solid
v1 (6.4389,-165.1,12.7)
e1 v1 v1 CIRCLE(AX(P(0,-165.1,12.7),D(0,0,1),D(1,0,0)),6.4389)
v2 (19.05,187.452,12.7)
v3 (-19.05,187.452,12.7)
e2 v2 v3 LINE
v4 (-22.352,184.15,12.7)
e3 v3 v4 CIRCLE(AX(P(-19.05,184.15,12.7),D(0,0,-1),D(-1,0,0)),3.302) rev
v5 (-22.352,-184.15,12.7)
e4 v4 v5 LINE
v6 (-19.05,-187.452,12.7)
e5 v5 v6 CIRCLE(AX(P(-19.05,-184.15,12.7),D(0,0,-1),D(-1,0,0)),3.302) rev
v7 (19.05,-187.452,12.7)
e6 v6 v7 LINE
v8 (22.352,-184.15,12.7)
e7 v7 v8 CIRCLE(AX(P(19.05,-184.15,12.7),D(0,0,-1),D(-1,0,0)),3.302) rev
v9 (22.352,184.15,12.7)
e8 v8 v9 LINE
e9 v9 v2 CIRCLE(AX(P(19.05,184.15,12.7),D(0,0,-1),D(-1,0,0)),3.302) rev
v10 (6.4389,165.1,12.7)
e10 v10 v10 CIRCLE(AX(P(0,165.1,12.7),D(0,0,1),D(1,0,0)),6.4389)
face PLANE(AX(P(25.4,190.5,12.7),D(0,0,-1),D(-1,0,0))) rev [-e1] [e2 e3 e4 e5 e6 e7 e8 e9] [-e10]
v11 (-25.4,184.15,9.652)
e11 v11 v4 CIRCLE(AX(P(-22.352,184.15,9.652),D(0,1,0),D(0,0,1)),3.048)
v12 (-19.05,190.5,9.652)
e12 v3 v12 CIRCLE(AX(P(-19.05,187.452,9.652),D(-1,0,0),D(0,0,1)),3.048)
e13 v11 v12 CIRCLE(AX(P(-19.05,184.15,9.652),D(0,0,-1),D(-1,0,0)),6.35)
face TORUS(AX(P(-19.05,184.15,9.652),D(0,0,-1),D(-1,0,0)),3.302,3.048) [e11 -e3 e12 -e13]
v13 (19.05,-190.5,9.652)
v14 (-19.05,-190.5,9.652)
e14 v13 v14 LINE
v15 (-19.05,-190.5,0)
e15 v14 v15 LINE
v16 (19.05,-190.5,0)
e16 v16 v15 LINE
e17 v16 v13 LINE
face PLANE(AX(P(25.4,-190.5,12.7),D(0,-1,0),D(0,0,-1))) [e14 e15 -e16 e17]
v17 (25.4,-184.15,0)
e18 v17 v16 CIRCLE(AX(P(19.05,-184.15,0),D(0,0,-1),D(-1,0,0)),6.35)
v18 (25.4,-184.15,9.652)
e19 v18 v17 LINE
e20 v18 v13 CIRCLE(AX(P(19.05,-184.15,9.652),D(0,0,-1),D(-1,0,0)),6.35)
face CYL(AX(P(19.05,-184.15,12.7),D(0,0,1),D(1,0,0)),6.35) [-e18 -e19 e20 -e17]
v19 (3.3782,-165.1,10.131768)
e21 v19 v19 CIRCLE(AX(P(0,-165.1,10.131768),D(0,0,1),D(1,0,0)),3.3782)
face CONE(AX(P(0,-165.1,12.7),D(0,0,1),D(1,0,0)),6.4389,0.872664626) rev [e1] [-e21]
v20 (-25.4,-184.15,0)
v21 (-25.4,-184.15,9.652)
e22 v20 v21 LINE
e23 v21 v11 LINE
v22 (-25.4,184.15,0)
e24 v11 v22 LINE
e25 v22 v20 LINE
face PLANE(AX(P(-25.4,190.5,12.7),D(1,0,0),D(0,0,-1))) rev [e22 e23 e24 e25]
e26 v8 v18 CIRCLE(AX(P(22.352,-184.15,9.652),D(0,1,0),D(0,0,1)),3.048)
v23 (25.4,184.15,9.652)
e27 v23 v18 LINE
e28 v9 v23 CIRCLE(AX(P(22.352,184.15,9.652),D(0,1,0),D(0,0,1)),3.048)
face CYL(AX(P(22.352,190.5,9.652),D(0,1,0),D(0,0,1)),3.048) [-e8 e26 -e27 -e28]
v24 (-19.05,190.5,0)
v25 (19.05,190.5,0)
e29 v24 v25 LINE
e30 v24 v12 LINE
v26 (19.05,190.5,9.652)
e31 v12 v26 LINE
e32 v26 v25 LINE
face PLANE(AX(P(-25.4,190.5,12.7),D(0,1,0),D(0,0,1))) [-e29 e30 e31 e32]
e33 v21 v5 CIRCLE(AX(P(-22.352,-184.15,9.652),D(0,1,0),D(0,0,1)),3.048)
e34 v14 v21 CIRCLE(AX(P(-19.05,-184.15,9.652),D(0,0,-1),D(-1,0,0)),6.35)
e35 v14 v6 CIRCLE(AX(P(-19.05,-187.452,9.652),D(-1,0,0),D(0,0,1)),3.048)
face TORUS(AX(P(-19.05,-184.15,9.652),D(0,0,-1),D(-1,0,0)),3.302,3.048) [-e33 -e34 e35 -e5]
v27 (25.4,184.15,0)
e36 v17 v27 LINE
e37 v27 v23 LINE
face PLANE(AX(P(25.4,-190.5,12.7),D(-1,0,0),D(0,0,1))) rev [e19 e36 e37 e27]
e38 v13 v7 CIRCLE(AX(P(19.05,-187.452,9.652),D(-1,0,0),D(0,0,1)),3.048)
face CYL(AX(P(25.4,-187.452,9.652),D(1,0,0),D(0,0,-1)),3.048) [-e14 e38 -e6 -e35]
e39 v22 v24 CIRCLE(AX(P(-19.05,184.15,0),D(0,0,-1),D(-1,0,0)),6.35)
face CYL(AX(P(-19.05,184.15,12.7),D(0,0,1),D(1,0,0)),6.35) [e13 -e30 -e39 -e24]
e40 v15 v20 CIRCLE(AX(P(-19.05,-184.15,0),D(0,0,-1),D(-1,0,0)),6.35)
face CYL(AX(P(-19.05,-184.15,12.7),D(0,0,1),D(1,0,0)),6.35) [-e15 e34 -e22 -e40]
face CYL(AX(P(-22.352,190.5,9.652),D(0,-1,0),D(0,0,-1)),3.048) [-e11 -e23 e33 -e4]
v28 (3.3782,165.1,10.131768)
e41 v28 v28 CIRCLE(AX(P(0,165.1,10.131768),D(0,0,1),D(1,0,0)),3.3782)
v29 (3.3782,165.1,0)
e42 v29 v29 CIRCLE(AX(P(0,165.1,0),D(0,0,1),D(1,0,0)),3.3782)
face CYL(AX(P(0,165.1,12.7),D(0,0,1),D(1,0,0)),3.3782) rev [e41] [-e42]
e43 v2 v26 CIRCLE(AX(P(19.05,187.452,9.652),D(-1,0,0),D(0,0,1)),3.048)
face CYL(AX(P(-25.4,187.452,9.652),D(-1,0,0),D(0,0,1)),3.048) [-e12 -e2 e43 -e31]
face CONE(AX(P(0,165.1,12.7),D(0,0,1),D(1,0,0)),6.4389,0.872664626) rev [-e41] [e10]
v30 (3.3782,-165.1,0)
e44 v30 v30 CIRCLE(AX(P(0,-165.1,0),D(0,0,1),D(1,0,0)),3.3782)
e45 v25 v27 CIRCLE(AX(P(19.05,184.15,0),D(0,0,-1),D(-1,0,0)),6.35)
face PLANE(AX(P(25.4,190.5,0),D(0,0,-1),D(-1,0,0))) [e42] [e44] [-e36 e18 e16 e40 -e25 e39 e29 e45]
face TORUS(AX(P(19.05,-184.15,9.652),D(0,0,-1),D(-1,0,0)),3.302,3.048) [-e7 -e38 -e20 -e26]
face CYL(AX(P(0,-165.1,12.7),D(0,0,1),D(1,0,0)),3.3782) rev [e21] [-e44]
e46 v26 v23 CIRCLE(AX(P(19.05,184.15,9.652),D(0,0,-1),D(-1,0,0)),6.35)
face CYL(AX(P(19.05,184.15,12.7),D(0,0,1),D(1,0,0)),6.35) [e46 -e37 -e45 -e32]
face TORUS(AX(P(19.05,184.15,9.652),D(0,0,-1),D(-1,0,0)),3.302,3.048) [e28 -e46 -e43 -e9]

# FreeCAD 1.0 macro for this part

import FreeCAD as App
import Part
import Sketcher
Q = App.Units.Quantity


def edges_at(feature, points):
    """Names of the edges that pass closest to the given points."""
    edges = feature.Shape.Edges
    near = lambda p: min(range(len(edges)), key=lambda i: edges[i].distToShape(Part.Vertex(*p))[0])
    return sorted({f"Edge{near(p) + 1}" for p in points})

doc = App.newDocument("Part")
params = doc.addObject("Spreadsheet::Sheet", "Params")
for row, (alias, value) in enumerate([
    ("sketch1_width", "2 in"),
    ("sketch1_height", "15 in"),
    ("pad1_length", "0.5 in"),
    ("sketch2_diameter", "0.266 in"),
    ("hole_diameter", "0.266 in"),
    ("hole_csink_diameter", "0.507 in"),
    ("fillet_radius", "0.25 in"),
    ("fillet2_radius", "0.12 in"),
], start=1):
    params.set(f"A{row}", alias)
    params.set(f"B{row}", "=" + value)
    params.setAlias(f"B{row}", alias)

body = doc.addObject("PartDesign::Body", "Body")

# Sketch on XY plane
sketch1 = body.newObject("Sketcher::SketchObject", "Sketch")
sketch1.AttachmentSupport = (doc.getObject("XY_Plane"), [""])
sketch1.MapMode = "FlatFace"
sketch1.addGeometry([
    Part.LineSegment(App.Vector(-25, 190, 0), App.Vector(-25, -190, 0)),
    Part.LineSegment(App.Vector(-25, -190, 0), App.Vector(25, -190, 0)),
    Part.LineSegment(App.Vector(25, -190, 0), App.Vector(25, 190, 0)),
    Part.LineSegment(App.Vector(25, 190, 0), App.Vector(-25, 190, 0)),
], False)
sketch1.addConstraint([
    Sketcher.Constraint("Coincident", 0, 2, 1, 1),
    Sketcher.Constraint("Coincident", 1, 2, 2, 1),
    Sketcher.Constraint("Coincident", 2, 2, 3, 1),
    Sketcher.Constraint("Coincident", 3, 2, 0, 1),
    Sketcher.Constraint("Vertical", 0),
    Sketcher.Constraint("Horizontal", 1),
    Sketcher.Constraint("Vertical", 2),
    Sketcher.Constraint("Horizontal", 3),
    Sketcher.Constraint("Symmetric", 0, 2, 2, 2, -1, 1),
    Sketcher.Constraint("DistanceX", 1, 1, 1, 2, Q("2 in")),
    Sketcher.Constraint("DistanceY", 0, 2, 0, 1, Q("15 in")),
])
sketch1.setExpression("Constraints[9]", "Params.sketch1_width")
sketch1.setExpression("Constraints[10]", "Params.sketch1_height")
pad1 = body.newObject("PartDesign::Pad", "Pad")
pad1.Profile = sketch1
pad1.setExpression("Length", "Params.pad1_length")

# Sketch on XY plane
sketch2 = body.newObject("Sketcher::SketchObject", "Sketch001")
sketch2.AttachmentSupport = (doc.getObject("XY_Plane"), [""])
sketch2.MapMode = "FlatFace"
sketch2.AttachmentOffset = App.Placement(App.Vector(0, 0, 0.5 * 25.4), App.Rotation())
sketch2.addGeometry([
    Part.Circle(App.Vector(0, 165.1, 0), App.Vector(0, 0, 1), 3.4),
    Part.Circle(App.Vector(0, -165.1, 0), App.Vector(0, 0, 1), 3.4),
], False)
sketch2.addConstraint([
    Sketcher.Constraint("Equal", 0, 1),
    Sketcher.Constraint("Symmetric", 0, 3, 1, 3, -1, 1),
    Sketcher.Constraint("PointOnObject", 0, 3, -2),
    Sketcher.Constraint("Diameter", 0, Q("0.266 in")),
    Sketcher.Constraint("DistanceY", 1, 3, 0, 3, Q("13 in")),
])
sketch2.setExpression("Constraints[3]", "Params.sketch2_diameter")
doc.recompute()
hole = body.newObject("PartDesign::Hole", "Hole")
hole.Profile = sketch2
hole.ThreadType = "None"
hole.setExpression("Diameter", "Params.hole_diameter")
hole.DepthType = "ThroughAll"
hole.HoleCutType = "Countersink"
hole.setExpression("HoleCutDiameter", "Params.hole_csink_diameter")
hole.HoleCutCountersinkAngle = 100
doc.recompute()

fillet = body.newObject("PartDesign::Fillet", "Fillet")
fillet.Base = (hole, edges_at(hole, [
    (25.4, -190.5, 6.35),
    (-25.4, -190.5, 6.35),
    (-25.4, 190.5, 6.35),
    (25.4, 190.5, 6.35),
]))
fillet.setExpression("Radius", "Params.fillet_radius")
doc.recompute()

fillet2 = body.newObject("PartDesign::Fillet", "Fillet001")
fillet2.Base = (fillet, edges_at(fillet, [
    (25.4, 0, 12.7),
    (0, -190.5, 12.7),
    (0, 190.5, 12.7),
    (-25.4, 0, 12.7),
    (23.54, 188.64, 12.7),
    (-23.54, 188.64, 12.7),
    (-23.54, -188.64, 12.7),
    (23.54, -188.64, 12.7),
]))
fillet2.setExpression("Radius", "Params.fillet2_radius")

doc.recompute()
